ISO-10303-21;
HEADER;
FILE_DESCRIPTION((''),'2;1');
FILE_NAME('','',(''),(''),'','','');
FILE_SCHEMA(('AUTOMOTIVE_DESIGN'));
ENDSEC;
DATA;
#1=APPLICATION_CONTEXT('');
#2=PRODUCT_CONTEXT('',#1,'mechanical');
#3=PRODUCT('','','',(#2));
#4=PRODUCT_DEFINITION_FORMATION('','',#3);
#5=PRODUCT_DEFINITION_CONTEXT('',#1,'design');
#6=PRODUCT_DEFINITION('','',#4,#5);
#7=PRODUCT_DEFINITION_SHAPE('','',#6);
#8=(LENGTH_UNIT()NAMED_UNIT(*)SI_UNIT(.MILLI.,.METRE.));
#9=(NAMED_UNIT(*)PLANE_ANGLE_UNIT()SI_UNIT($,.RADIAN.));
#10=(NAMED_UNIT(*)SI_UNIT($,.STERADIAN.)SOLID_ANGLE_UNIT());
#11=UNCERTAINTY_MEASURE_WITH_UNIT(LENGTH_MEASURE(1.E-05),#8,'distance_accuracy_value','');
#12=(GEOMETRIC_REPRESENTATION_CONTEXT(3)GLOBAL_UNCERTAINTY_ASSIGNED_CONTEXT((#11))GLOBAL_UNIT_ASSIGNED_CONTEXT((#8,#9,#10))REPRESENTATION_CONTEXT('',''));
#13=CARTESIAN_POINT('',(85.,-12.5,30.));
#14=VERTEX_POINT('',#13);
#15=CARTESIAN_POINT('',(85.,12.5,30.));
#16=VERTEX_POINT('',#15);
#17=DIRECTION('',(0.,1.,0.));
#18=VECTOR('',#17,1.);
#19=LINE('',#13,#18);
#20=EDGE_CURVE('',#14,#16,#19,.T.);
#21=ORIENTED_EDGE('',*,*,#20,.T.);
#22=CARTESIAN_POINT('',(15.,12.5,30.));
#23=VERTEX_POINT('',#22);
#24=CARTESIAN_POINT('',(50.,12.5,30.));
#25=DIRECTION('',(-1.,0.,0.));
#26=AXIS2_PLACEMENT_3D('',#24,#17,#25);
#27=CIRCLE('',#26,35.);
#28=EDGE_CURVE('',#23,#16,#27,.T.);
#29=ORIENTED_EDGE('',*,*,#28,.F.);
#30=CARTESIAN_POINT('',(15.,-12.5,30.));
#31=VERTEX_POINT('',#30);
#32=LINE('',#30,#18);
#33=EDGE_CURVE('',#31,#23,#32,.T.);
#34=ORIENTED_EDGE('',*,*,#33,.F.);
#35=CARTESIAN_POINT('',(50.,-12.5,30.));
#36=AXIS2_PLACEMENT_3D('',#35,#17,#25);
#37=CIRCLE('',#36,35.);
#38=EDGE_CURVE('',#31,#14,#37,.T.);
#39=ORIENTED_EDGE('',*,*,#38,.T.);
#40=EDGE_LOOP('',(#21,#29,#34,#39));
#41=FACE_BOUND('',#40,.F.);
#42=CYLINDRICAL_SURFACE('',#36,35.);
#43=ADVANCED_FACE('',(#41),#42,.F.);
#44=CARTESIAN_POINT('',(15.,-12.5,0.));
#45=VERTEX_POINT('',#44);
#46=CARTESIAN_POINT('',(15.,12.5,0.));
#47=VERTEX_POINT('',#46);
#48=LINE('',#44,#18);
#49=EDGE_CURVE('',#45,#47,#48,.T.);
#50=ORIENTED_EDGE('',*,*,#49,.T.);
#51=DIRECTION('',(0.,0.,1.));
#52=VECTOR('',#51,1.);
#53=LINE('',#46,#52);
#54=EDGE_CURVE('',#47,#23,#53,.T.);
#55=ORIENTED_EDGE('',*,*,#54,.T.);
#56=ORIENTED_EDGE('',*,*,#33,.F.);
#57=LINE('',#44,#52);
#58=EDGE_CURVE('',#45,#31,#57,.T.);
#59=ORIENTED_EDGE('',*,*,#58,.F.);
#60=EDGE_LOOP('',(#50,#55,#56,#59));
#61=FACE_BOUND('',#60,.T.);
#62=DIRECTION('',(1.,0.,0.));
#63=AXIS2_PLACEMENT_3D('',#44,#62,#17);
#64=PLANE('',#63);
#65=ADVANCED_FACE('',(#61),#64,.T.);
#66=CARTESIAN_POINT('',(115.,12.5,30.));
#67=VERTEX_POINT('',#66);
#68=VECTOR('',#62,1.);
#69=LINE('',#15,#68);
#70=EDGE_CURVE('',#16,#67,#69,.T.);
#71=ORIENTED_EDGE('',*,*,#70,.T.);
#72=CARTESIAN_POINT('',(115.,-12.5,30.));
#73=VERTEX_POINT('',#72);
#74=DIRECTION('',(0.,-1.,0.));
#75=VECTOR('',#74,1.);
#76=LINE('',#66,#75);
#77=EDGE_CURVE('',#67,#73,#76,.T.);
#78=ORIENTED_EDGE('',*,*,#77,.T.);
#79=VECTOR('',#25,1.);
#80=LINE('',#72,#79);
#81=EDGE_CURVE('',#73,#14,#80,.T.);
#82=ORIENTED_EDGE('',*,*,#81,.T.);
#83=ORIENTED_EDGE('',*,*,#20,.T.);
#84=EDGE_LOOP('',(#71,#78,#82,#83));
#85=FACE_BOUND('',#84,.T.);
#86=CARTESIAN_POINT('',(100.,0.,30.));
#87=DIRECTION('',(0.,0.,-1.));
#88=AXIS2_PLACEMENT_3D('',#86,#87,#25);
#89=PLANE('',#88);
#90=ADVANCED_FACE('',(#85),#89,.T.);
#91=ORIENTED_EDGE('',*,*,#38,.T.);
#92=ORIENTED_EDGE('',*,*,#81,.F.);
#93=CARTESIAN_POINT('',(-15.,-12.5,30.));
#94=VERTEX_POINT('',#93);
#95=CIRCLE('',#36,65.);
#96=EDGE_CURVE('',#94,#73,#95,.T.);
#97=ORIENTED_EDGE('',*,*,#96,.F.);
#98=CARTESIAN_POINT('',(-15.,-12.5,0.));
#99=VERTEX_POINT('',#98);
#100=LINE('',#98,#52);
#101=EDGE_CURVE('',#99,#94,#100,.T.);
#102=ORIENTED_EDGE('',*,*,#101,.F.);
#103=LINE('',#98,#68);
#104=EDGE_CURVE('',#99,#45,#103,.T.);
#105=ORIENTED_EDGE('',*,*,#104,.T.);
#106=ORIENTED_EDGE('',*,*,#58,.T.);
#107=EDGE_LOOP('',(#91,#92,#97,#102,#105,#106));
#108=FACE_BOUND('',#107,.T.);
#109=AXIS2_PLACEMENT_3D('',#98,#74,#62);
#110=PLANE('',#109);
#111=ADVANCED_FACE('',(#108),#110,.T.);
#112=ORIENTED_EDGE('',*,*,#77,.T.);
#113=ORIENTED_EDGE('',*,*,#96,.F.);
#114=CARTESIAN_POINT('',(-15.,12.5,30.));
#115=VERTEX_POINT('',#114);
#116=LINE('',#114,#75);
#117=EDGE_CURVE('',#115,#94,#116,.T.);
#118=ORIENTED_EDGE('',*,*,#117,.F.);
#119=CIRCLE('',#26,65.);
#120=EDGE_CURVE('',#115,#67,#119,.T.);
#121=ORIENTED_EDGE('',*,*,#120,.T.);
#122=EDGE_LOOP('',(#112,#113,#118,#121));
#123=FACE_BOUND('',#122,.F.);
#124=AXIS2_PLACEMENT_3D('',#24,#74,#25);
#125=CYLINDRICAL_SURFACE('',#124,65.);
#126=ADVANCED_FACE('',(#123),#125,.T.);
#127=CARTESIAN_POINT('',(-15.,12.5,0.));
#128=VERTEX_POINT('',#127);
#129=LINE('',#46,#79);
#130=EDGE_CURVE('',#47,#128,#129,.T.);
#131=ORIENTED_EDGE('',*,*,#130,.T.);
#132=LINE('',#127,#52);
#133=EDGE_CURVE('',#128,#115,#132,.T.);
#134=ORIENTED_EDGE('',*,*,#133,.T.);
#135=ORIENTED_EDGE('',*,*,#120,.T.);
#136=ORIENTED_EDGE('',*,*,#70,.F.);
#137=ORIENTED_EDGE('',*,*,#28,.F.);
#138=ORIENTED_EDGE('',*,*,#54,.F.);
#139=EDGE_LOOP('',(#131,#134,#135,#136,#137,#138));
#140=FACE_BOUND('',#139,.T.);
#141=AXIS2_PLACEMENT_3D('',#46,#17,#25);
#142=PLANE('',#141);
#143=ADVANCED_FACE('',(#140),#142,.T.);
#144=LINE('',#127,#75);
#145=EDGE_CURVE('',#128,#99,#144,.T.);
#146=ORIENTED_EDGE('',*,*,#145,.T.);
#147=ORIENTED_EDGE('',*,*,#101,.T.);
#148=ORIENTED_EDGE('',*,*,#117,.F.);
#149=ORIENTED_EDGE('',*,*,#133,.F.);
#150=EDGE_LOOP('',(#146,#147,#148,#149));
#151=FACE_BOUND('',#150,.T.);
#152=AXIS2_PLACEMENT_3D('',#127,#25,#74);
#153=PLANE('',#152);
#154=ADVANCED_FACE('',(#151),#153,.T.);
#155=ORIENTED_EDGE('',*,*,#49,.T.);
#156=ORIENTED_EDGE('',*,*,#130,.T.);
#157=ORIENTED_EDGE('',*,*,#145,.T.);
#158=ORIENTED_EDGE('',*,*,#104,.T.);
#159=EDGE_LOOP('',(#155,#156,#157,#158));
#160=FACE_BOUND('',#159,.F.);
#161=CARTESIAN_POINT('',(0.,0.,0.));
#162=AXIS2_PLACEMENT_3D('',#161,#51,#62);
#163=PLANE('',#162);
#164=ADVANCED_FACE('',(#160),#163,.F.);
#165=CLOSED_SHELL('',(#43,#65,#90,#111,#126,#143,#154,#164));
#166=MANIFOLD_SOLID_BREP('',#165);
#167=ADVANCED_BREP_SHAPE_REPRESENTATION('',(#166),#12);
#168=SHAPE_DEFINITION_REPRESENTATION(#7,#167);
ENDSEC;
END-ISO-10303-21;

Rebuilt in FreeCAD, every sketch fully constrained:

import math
import FreeCAD as App
import Part
import Sketcher
from FreeCAD import Vector


def add_polygon(sketch, points):
    """Adds a closed chain of lines whose ends are joined by coincident constraints."""
    first, n = sketch.GeometryCount, len(points)
    for a, b in zip(points, points[1:] + points[:1]):
        sketch.addGeometry(Part.LineSegment(App.Vector(*a, 0), App.Vector(*b, 0)), False)
    for i in range(n):
        sketch.addConstraint(Sketcher.Constraint("Coincident", first + i, 2, first + (i + 1) % n, 1))

doc = App.newDocument("Part")
body = doc.addObject("PartDesign::Body", "Body")

sketch1 = body.newObject("Sketcher::SketchObject", "Sketch")
sketch1.AttachmentSupport = (doc.getObject("XY_Plane"), [""])
sketch1.MapMode = "FlatFace"
add_polygon(sketch1, [(-15, -12.5), (15, -12.5), (15, 12.5), (-15, 12.5)])
sketch1.addConstraint(Sketcher.Constraint("Horizontal", 0))
sketch1.addConstraint(Sketcher.Constraint("Vertical", 1))
sketch1.addConstraint(Sketcher.Constraint("Horizontal", 2))
sketch1.addConstraint(Sketcher.Constraint("Vertical", 3))
sketch1.addConstraint(Sketcher.Constraint("Symmetric", 0, 2, 2, 2, -1, 1))
sketch1.addConstraint(Sketcher.Constraint("DistanceX", 0, 1, 0, 2, 30.0))
sketch1.addConstraint(Sketcher.Constraint("DistanceY", 1, 1, 1, 2, 25.0))

sketch2 = body.newObject("Sketcher::SketchObject", "Sketch001")
sketch2.AttachmentSupport = (doc.getObject("XZ_Plane"), [""])
sketch2.MapMode = "FlatFace"
sketch2.addGeometry(Part.LineSegment(Vector(0, 0, 0), Vector(0, 30, 0)), False)
sketch2.addGeometry(Part.ArcOfCircle(Part.Circle(Vector(50, 30, 0), Vector(0, 0, 1), 50), math.radians(0), math.radians(180)), False)
sketch2.addConstraint(Sketcher.Constraint("Tangent", 0, 2, 1, 2))
sketch2.addConstraint(Sketcher.Constraint("Vertical", 0))
sketch2.addConstraint(Sketcher.Constraint("Coincident", 0, 1, -1, 1))
sketch2.addConstraint(Sketcher.Constraint("Horizontal", 0, 2, 1, 1))
sketch2.addConstraint(Sketcher.Constraint("Radius", 1, 50.0))
sketch2.addConstraint(Sketcher.Constraint("DistanceY", 0, 1, 0, 2, 30.0))
doc.recompute()

additivepipe = body.newObject("PartDesign::AdditivePipe", "AdditivePipe")
additivepipe.Profile = sketch1
additivepipe.Spine = (sketch2, ["Edge1", "Edge2"])

doc.recompute()
